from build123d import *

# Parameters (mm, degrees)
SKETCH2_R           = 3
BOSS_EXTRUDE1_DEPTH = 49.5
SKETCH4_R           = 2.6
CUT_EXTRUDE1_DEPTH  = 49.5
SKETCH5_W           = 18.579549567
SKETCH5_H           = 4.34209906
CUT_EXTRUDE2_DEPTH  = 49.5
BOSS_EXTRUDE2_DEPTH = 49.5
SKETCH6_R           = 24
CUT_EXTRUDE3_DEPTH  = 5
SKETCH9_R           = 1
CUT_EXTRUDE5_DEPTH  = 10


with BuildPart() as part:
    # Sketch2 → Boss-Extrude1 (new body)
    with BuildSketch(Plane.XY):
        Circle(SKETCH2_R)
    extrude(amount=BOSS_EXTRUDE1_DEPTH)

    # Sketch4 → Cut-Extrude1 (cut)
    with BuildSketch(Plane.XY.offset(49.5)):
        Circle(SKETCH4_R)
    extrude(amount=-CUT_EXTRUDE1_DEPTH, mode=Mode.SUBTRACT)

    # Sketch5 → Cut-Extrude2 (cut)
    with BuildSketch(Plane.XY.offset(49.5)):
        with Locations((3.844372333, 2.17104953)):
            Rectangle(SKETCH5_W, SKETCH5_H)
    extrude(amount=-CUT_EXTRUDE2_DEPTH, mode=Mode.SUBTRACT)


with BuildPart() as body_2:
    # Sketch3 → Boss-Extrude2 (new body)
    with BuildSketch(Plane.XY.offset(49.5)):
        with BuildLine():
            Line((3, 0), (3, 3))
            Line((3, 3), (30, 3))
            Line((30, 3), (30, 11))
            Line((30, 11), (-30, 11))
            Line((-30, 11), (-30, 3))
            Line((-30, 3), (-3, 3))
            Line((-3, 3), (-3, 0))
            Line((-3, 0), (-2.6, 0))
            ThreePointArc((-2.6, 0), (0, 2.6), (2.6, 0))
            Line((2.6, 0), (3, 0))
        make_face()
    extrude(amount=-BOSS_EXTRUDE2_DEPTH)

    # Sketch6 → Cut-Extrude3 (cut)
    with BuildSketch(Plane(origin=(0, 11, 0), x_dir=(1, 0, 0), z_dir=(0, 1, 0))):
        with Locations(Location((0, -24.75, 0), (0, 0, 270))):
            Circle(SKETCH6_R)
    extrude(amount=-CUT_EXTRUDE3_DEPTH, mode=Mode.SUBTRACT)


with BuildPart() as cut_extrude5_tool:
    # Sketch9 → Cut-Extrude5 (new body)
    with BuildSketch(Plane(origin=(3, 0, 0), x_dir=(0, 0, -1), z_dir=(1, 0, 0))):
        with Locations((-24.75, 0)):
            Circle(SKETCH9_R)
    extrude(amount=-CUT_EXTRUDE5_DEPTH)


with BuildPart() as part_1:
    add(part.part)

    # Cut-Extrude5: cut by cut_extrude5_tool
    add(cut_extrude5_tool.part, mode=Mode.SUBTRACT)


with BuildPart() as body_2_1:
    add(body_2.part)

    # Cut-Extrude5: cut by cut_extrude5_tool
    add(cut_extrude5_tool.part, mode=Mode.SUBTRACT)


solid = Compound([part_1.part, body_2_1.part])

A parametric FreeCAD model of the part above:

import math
import FreeCAD as App
import Part
import Sketcher
from FreeCAD import Vector


def add_polygon(sketch, points):
    """Adds a closed chain of lines whose ends are joined by coincident constraints."""
    first, n = sketch.GeometryCount, len(points)
    for a, b in zip(points, points[1:] + points[:1]):
        sketch.addGeometry(Part.LineSegment(App.Vector(*a, 0), App.Vector(*b, 0)), False)
    for i in range(n):
        sketch.addConstraint(Sketcher.Constraint("Coincident", first + i, 2, first + (i + 1) % n, 1))

doc = App.newDocument("Part")
body = doc.addObject("PartDesign::Body", "Body")

# Sketch on XY plane
sketch1 = doc.addObject("Sketcher::SketchObject", "Sketch")
body.addObject(sketch1)
sketch1.AttachmentSupport = (doc.XY_Plane, [""])
sketch1.MapMode = "FlatFace"
sketch1.addGeometry(Part.Circle(Vector(0, 0, 0), Vector(0, 0, 1), 3), False)
sketch1.addConstraint(Sketcher.Constraint("Coincident", 0, 3, -1, 1))
sketch1.addConstraint(Sketcher.Constraint("Diameter", 0, 6.0))
pad1 = doc.addObject("PartDesign::Pad", "Pad")
body.addObject(pad1)
pad1.Profile = sketch1
pad1.Length = 49.5

# Sketch on XY plane
sketch2 = doc.addObject("Sketcher::SketchObject", "Sketch001")
body.addObject(sketch2)
sketch2.AttachmentSupport = (doc.XY_Plane, [""])
sketch2.MapMode = "FlatFace"
sketch2.AttachmentOffset = App.Placement(Vector(0, 0, 49.5), App.Rotation())
sketch2.addGeometry(Part.Circle(Vector(0, 0, 0), Vector(0, 0, 1), 2.6), False)
sketch2.addConstraint(Sketcher.Constraint("Coincident", 0, 3, -1, 1))
sketch2.addConstraint(Sketcher.Constraint("Diameter", 0, 5.2))
pocket1 = doc.addObject("PartDesign::Pocket", "Pocket")
body.addObject(pocket1)
pocket1.Profile = sketch2
pocket1.Length = 49.5

# Sketch on XY plane
sketch3 = doc.addObject("Sketcher::SketchObject", "Sketch002")
body.addObject(sketch3)
sketch3.AttachmentSupport = (doc.XY_Plane, [""])
sketch3.MapMode = "FlatFace"
sketch3.AttachmentOffset = App.Placement(Vector(0, 0, 49.5), App.Rotation())
add_polygon(sketch3, [(-5.4, 4.3), (-5.4, 0), (13.1, 0), (13.1, 4.3)])  # lines 0-3
sketch3.addConstraint(Sketcher.Constraint("Vertical", 0))
sketch3.addConstraint(Sketcher.Constraint("Horizontal", 1))
sketch3.addConstraint(Sketcher.Constraint("Vertical", 2))
sketch3.addConstraint(Sketcher.Constraint("Horizontal", 3))
sketch3.addConstraint(Sketcher.Constraint("PointOnObject", 0, 2, -1))
sketch3.addConstraint(Sketcher.Constraint("DistanceY", 0, 2, 0, 1, 4.342099))
sketch3.addConstraint(Sketcher.Constraint("DistanceX", 1, 1, 1, 2, 18.57955))
sketch3.addConstraint(Sketcher.Constraint("DistanceX", 0, 2, -1, 1, 5.445402))
pocket2 = doc.addObject("PartDesign::Pocket", "Pocket001")
body.addObject(pocket2)
pocket2.Profile = sketch3
pocket2.Length = 49.5
body2 = doc.addObject("PartDesign::Body", "Body001")

# Sketch on XY plane
sketch4 = doc.addObject("Sketcher::SketchObject", "Sketch003")
body2.addObject(sketch4)
sketch4.AttachmentSupport = (doc.getObject("XY_Plane001"), [""])
sketch4.MapMode = "FlatFace"
sketch4.AttachmentOffset = App.Placement(Vector(0, 0, 49.5), App.Rotation())
sketch4.addGeometry(Part.LineSegment(Vector(3, 0, 0), Vector(3, 3, 0)), False)
sketch4.addGeometry(Part.LineSegment(Vector(3, 3, 0), Vector(30, 3, 0)), False)
sketch4.addGeometry(Part.LineSegment(Vector(30, 3, 0), Vector(30, 11, 0)), False)
sketch4.addGeometry(Part.LineSegment(Vector(30, 11, 0), Vector(-30, 11, 0)), False)
sketch4.addGeometry(Part.LineSegment(Vector(-30, 11, 0), Vector(-30, 3, 0)), False)
sketch4.addGeometry(Part.LineSegment(Vector(-30, 3, 0), Vector(-3, 3, 0)), False)
sketch4.addGeometry(Part.LineSegment(Vector(-3, 3, 0), Vector(-3, 0, 0)), False)
sketch4.addGeometry(Part.LineSegment(Vector(-3, 0, 0), Vector(-2.6, 0, 0)), False)
sketch4.addGeometry(Part.ArcOfCircle(Part.Circle(Vector(0, 0, 0), Vector(0, 0, 1), 2.6), math.radians(0), math.radians(180)), False)
sketch4.addGeometry(Part.LineSegment(Vector(2.6, 0, 0), Vector(3, 0, 0)), False)
sketch4.addConstraint(Sketcher.Constraint("Coincident", 0, 2, 1, 1))
sketch4.addConstraint(Sketcher.Constraint("Coincident", 1, 2, 2, 1))
sketch4.addConstraint(Sketcher.Constraint("Coincident", 2, 2, 3, 1))
sketch4.addConstraint(Sketcher.Constraint("Coincident", 3, 2, 4, 1))
sketch4.addConstraint(Sketcher.Constraint("Coincident", 4, 2, 5, 1))
sketch4.addConstraint(Sketcher.Constraint("Coincident", 5, 2, 6, 1))
sketch4.addConstraint(Sketcher.Constraint("Coincident", 6, 2, 7, 1))
sketch4.addConstraint(Sketcher.Constraint("Coincident", 7, 2, 8, 2))
sketch4.addConstraint(Sketcher.Constraint("Coincident", 8, 1, 9, 1))
sketch4.addConstraint(Sketcher.Constraint("Coincident", 9, 2, 0, 1))
sketch4.addConstraint(Sketcher.Constraint("Vertical", 0))
sketch4.addConstraint(Sketcher.Constraint("Horizontal", 1))
sketch4.addConstraint(Sketcher.Constraint("Vertical", 2))
sketch4.addConstraint(Sketcher.Constraint("Horizontal", 3))
sketch4.addConstraint(Sketcher.Constraint("Vertical", 4))
sketch4.addConstraint(Sketcher.Constraint("Horizontal", 5))
sketch4.addConstraint(Sketcher.Constraint("Vertical", 6))
sketch4.addConstraint(Sketcher.Constraint("Horizontal", 7))
sketch4.addConstraint(Sketcher.Constraint("Horizontal", 9))
sketch4.addConstraint(Sketcher.Constraint("Coincident", 8, 3, -1, 1))
sketch4.addConstraint(Sketcher.Constraint("Symmetric", 6, 2, 9, 2, -1, 1))
sketch4.addConstraint(Sketcher.Constraint("Symmetric", 1, 2, 4, 2, -2))
sketch4.addConstraint(Sketcher.Constraint("PointOnObject", 6, 2, -1))
sketch4.addConstraint(Sketcher.Constraint("Radius", 8, 2.6))
sketch4.addConstraint(Sketcher.Constraint("DistanceX", 1, 1, 1, 2, 27.0))
sketch4.addConstraint(Sketcher.Constraint("DistanceX", 3, 2, 3, 1, 60.0))
sketch4.addConstraint(Sketcher.Constraint("DistanceY", 0, 1, 0, 2, 3.0))
sketch4.addConstraint(Sketcher.Constraint("DistanceY", 2, 1, 2, 2, 8.0))
pad2 = doc.addObject("PartDesign::Pad", "Pad001")
body2.addObject(pad2)
pad2.Profile = sketch4
pad2.Length = 49.5
pad2.Reversed = True

# Sketch on XZ plane
sketch5 = doc.addObject("Sketcher::SketchObject", "Sketch004")
body2.addObject(sketch5)
sketch5.AttachmentSupport = (doc.getObject("XZ_Plane001"), [""])
sketch5.MapMode = "FlatFace"
sketch5.AttachmentOffset = App.Placement(Vector(0, 0, -11), App.Rotation())
sketch5.addGeometry(Part.Circle(Vector(0, 25, 0), Vector(0, 0, 1), 24), False)
sketch5.addConstraint(Sketcher.Constraint("PointOnObject", 0, 3, -2))
sketch5.addConstraint(Sketcher.Constraint("Diameter", 0, 48.0))
sketch5.addConstraint(Sketcher.Constraint("DistanceY", -1, 1, 0, 3, 24.75))
pocket3 = doc.addObject("PartDesign::Pocket", "Pocket002")
body2.addObject(pocket3)
pocket3.Profile = sketch5
pocket3.Length = 5
pocket3.Reversed = True
body3 = doc.addObject("PartDesign::Body", "Body002")

# Sketch on YZ plane
sketch6 = doc.addObject("Sketcher::SketchObject", "Sketch005")
body3.addObject(sketch6)
sketch6.AttachmentSupport = (doc.getObject("YZ_Plane002"), [""])
sketch6.MapMode = "FlatFace"
sketch6.AttachmentOffset = App.Placement(Vector(0, 0, 3), App.Rotation())
sketch6.addGeometry(Part.Circle(Vector(0, 24.8, 0), Vector(0, 0, 1), 1), False)
sketch6.addConstraint(Sketcher.Constraint("PointOnObject", 0, 3, -2))
sketch6.addConstraint(Sketcher.Constraint("Diameter", 0, 2.0))
sketch6.addConstraint(Sketcher.Constraint("DistanceY", -1, 1, 0, 3, 24.75))
pad3 = doc.addObject("PartDesign::Pad", "Pad002")
body3.addObject(pad3)
pad3.Profile = sketch6
pad3.Length = 10
pad3.Reversed = True
doc.recompute()

body4 = doc.addObject("PartDesign::Body", "Body003")
body4.BaseFeature = body3
boolean = doc.addObject("PartDesign::Boolean", "Boolean")
body.addObject(boolean)
boolean.Type = "Cut"
boolean.addObjects([body4])
doc.recompute()

boolean2 = doc.addObject("PartDesign::Boolean", "Boolean001")
body2.addObject(boolean2)
boolean2.Type = "Cut"
boolean2.addObjects([body3])

doc.recompute()
